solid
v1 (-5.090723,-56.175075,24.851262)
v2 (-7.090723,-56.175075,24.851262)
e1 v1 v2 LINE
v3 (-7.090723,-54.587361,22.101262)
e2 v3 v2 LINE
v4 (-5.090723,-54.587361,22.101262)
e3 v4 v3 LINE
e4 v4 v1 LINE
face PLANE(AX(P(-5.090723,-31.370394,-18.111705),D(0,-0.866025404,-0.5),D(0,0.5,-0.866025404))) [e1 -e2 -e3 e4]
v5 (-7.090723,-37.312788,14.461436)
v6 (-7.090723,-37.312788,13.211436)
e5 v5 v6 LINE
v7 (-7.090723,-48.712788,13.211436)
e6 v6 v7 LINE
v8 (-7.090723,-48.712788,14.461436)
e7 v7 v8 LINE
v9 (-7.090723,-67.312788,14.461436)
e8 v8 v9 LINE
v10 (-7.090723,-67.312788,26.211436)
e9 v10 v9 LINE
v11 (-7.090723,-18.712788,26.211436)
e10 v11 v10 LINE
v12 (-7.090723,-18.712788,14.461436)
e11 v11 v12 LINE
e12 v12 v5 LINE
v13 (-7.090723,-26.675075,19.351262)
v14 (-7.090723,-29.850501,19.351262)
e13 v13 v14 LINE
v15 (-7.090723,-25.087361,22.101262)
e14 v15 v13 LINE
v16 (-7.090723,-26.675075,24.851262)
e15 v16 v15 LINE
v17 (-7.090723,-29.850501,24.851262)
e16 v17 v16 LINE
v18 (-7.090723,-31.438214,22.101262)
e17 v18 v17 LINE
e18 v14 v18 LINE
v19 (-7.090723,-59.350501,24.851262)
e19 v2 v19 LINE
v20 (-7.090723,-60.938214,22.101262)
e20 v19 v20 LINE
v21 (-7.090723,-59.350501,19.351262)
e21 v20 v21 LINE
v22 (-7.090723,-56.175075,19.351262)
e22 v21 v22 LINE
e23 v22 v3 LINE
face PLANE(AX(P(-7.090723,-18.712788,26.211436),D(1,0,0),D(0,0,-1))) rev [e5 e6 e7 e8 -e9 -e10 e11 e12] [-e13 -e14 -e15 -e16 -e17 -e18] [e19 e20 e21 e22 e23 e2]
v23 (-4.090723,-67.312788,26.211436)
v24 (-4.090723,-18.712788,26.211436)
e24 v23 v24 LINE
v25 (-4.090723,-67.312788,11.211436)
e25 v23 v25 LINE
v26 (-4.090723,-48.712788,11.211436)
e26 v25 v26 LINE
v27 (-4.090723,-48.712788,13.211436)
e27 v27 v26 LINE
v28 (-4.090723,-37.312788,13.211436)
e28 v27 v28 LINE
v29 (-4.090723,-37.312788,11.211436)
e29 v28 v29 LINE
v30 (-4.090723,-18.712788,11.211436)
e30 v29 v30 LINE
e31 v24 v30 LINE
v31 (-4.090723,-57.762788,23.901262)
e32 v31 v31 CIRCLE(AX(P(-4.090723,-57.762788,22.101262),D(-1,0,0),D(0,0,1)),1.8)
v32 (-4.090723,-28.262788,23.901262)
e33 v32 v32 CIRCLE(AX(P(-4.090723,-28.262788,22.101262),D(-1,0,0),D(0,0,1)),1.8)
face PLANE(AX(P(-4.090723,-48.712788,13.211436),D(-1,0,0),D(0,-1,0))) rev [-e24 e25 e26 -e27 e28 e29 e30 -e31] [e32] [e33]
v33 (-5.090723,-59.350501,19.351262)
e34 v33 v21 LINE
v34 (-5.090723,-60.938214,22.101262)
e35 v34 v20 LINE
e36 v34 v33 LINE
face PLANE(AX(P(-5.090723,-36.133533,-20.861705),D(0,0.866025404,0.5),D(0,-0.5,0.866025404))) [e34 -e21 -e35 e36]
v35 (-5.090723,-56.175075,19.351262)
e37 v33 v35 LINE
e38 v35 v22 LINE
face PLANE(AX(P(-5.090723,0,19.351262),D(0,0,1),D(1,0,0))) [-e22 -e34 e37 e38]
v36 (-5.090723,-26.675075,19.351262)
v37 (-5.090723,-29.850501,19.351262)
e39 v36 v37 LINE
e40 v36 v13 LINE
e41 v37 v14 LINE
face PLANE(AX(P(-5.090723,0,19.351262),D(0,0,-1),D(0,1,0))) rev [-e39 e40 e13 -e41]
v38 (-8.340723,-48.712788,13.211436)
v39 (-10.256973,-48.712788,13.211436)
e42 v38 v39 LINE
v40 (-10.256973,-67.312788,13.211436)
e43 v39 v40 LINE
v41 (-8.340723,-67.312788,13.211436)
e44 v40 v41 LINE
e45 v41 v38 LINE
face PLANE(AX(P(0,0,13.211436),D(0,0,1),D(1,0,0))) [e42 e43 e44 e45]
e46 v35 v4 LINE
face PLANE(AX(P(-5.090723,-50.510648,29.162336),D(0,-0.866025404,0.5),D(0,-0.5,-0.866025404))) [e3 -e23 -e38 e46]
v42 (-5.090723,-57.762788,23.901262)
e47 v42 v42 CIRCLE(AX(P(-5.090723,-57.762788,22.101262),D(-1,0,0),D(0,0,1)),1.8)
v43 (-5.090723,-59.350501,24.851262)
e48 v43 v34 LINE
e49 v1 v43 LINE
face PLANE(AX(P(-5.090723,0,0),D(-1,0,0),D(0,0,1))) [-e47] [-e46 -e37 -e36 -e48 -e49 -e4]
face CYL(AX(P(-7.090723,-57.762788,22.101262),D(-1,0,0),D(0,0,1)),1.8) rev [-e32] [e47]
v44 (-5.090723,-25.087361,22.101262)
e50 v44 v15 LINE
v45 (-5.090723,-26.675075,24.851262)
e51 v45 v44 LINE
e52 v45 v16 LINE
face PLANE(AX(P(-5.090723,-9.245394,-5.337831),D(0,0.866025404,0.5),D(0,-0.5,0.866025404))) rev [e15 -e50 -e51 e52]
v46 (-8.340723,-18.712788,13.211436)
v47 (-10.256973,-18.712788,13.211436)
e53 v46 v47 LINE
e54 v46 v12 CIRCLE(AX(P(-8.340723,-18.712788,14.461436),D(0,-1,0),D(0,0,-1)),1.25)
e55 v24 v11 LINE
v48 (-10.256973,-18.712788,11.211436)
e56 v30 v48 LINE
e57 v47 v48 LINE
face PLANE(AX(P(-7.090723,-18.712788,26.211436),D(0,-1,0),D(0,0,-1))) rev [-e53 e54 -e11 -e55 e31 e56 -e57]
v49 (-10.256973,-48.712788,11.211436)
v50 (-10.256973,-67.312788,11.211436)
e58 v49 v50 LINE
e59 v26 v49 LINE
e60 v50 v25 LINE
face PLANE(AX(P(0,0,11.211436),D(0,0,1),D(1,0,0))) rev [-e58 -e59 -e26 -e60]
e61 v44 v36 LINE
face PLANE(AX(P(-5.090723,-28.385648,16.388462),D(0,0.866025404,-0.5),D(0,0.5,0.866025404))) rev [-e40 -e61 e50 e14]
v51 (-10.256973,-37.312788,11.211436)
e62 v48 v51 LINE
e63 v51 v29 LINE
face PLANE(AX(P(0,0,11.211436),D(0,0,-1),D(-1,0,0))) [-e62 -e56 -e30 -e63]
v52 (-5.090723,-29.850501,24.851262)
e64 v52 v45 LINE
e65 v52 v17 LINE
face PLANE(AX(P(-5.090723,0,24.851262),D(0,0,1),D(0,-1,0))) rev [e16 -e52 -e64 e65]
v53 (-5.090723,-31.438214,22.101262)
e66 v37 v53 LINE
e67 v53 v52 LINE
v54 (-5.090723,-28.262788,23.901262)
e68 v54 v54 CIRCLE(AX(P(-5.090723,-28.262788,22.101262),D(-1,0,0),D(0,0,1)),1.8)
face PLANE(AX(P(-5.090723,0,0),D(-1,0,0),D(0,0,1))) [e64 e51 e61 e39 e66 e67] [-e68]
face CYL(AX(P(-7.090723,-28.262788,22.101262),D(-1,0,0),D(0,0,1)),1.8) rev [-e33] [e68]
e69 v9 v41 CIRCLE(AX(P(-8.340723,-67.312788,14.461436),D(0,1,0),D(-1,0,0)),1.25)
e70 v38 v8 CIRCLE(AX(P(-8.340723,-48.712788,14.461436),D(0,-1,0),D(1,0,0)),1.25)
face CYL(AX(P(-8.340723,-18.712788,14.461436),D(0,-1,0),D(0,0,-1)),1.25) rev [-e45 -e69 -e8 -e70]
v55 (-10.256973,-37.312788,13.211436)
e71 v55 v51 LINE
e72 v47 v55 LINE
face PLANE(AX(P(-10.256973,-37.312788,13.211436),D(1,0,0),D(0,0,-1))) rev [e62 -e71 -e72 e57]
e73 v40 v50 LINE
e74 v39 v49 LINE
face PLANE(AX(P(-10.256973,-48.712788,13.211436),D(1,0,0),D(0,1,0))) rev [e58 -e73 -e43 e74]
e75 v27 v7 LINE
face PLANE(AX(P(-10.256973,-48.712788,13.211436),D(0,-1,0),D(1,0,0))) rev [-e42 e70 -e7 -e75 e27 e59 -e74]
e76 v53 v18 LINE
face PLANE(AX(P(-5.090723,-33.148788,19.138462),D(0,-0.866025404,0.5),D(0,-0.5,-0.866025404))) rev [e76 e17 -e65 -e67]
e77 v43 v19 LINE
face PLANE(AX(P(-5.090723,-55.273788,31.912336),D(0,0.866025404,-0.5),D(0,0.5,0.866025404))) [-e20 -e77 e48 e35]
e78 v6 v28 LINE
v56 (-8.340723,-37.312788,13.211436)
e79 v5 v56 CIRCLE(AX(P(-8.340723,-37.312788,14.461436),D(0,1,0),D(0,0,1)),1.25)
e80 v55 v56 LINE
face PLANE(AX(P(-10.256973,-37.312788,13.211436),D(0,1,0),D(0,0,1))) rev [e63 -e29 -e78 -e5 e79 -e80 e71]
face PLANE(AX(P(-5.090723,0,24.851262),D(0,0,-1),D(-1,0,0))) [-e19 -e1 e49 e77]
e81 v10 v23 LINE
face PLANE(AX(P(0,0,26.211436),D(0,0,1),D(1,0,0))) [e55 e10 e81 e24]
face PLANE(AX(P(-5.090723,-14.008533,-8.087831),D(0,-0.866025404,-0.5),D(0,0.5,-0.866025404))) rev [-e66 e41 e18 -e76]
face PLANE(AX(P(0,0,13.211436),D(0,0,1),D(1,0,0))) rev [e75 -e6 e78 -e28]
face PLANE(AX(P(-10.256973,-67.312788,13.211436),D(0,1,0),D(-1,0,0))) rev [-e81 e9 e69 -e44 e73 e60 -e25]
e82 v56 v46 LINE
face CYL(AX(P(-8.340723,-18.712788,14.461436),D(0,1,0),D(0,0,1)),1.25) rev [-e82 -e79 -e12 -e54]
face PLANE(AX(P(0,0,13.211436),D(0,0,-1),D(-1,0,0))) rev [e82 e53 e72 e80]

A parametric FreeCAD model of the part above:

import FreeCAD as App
import Part
import Sketcher

V = App.Vector
Q = App.Units.Quantity


def edges_at(feature, points):
    """Names of the edges that pass closest to the given points."""
    edges = feature.Shape.Edges
    near = lambda p: min(range(len(edges)), key=lambda i: edges[i].distToShape(Part.Vertex(*p))[0])
    return sorted({f"Edge{near(p) + 1}" for p in points})


def add_polygon(sketch, points):
    """Adds a closed chain of lines whose ends are joined by coincident constraints."""
    first, n = sketch.GeometryCount, len(points)
    for a, b in zip(points, points[1:] + points[:1]):
        sketch.addGeometry(Part.LineSegment(App.Vector(*a, 0), App.Vector(*b, 0)), False)
    for i in range(n):
        sketch.addConstraint(Sketcher.Constraint("Coincident", first + i, 2, first + (i + 1) % n, 1))

doc = App.newDocument("Part")
params = doc.addObject("Spreadsheet::Sheet", "Params")
for row, (alias, value) in enumerate([
    ("sketch1_height", "18.6 mm"),
    ("pad1_length", "2 mm"),
    ("sketch2_height", "18.6 mm"),
    ("pad2_length", "2 mm"),
    ("sketch3_width", "3 mm"),
    ("sketch3_height", "48.6 mm"),
    ("pad3_length", "13 mm"),
    ("fillet_radius", "1.25 mm"),
    ("pocket1_length", "2 mm"),
    ("sketch5_diameter", "3.6 mm"),
    ("hole_diameter", "3.6 mm"),
], start=1):
    params.set(f"A{row}", alias)
    params.set(f"B{row}", "=" + value)
    params.setAlias(f"B{row}", alias)

body = doc.addObject("PartDesign::Body", "Body")

# Sketch on XY plane
sketch1 = body.newObject("Sketcher::SketchObject", "Sketch")
sketch1.AttachmentSupport = (doc.getObject("XY_Plane"), [""])
sketch1.MapMode = "FlatFace"
sketch1.AttachmentOffset = App.Placement(V(0, 0, 11.211436), App.Rotation())
add_polygon(sketch1, [(-10, -19), (-10, -37), (-4, -37), (-4, -19)])  # lines 0-3
sketch1.addConstraint([
    Sketcher.Constraint("Vertical", 0),
    Sketcher.Constraint("Horizontal", 1),
    Sketcher.Constraint("Vertical", 2),
    Sketcher.Constraint("Horizontal", 3),
    Sketcher.Constraint("DistanceY", 0, 2, 0, 1, Q("18.6 mm")),
    Sketcher.Constraint("DistanceX", 1, 1, 1, 2, Q("6.16625 mm")),
    Sketcher.Constraint("DistanceX", 0, 2, -1, 1, Q("10.256973 mm")),
    Sketcher.Constraint("DistanceY", 0, 2, -1, 1, Q("37.312788 mm")),
])
sketch1.setExpression("Constraints[8]", "Params.sketch1_height")
pad1 = body.newObject("PartDesign::Pad", "Pad")
pad1.Profile = sketch1
pad1.setExpression("Length", "Params.pad1_length")
body2 = doc.addObject("PartDesign::Body", "Body001")

# Sketch on XY plane
sketch2 = body2.newObject("Sketcher::SketchObject", "Sketch001")
sketch2.AttachmentSupport = (doc.getObject("XY_Plane001"), [""])
sketch2.MapMode = "FlatFace"
sketch2.AttachmentOffset = App.Placement(V(0, 0, 11.211436), App.Rotation())
add_polygon(sketch2, [(-10, -49), (-10, -67), (-4, -67), (-4, -49)])  # lines 0-3
sketch2.addConstraint([
    Sketcher.Constraint("Vertical", 0),
    Sketcher.Constraint("Horizontal", 1),
    Sketcher.Constraint("Vertical", 2),
    Sketcher.Constraint("Horizontal", 3),
    Sketcher.Constraint("DistanceY", 0, 2, 0, 1, Q("18.6 mm")),
    Sketcher.Constraint("DistanceX", 1, 1, 1, 2, Q("6.16625 mm")),
    Sketcher.Constraint("DistanceX", 0, 2, -1, 1, Q("10.256973 mm")),
    Sketcher.Constraint("DistanceY", 0, 2, -1, 1, Q("67.312788 mm")),
])
sketch2.setExpression("Constraints[8]", "Params.sketch2_height")
pad2 = body2.newObject("PartDesign::Pad", "Pad001")
pad2.Profile = sketch2
pad2.setExpression("Length", "Params.pad2_length")
body.AllowCompound = True
doc.recompute()

boolean = body.newObject("PartDesign::Boolean", "Boolean")
boolean.Type = "Fuse"
boolean.addObjects([body2])

# Sketch on XY plane
sketch3 = body.newObject("Sketcher::SketchObject", "Sketch002")
sketch3.AttachmentSupport = (doc.getObject("XY_Plane"), [""])
sketch3.MapMode = "FlatFace"
sketch3.AttachmentOffset = App.Placement(V(0, 0, 13.211436), App.Rotation())
add_polygon(sketch3, [(-7.1, -18.7), (-7.1, -67.3), (-4.1, -67.3), (-4.1, -18.7)])  # lines 0-3
sketch3.addConstraint([
    Sketcher.Constraint("Vertical", 0),
    Sketcher.Constraint("Horizontal", 1),
    Sketcher.Constraint("Vertical", 2),
    Sketcher.Constraint("Horizontal", 3),
    Sketcher.Constraint("DistanceX", 1, 1, 1, 2, Q("3 mm")),
    Sketcher.Constraint("DistanceY", 0, 2, 0, 1, Q("48.6 mm")),
    Sketcher.Constraint("DistanceX", 0, 2, -1, 1, Q("7.090723 mm")),
    Sketcher.Constraint("DistanceY", 0, 2, -1, 1, Q("67.312788 mm")),
])
sketch3.setExpression("Constraints[8]", "Params.sketch3_width")
sketch3.setExpression("Constraints[9]", "Params.sketch3_height")
pad3 = body.newObject("PartDesign::Pad", "Pad002")
pad3.Profile = sketch3
pad3.setExpression("Length", "Params.pad3_length")
doc.recompute()

fillet = body.newObject("PartDesign::Fillet", "Fillet")
fillet.Base = (pad3, edges_at(pad3, [(-7.091, -58.013, 13.211), (-7.091, -28.013, 13.211)]))
fillet.setExpression("Radius", "Params.fillet_radius")

# Sketch on YZ plane
sketch4 = body.newObject("Sketcher::SketchObject", "Sketch003")
sketch4.AttachmentSupport = (doc.getObject("YZ_Plane"), [""])
sketch4.MapMode = "FlatFace"
sketch4.AttachmentOffset = App.Placement(V(0, 0, -7.090723), App.Rotation())
add_polygon(sketch4, [(-31.4, 22.1), (-29.9, 19.4), (-26.7, 19.4), (-25.1, 22.1), (-26.7, 24.9), (-29.9, 24.9)])  # lines 0-5
add_polygon(sketch4, [(-60.9, 22.1), (-59.4, 19.4), (-56.2, 19.4), (-54.6, 22.1), (-56.2, 24.9), (-59.4, 24.9)])  # lines 6-11
sketch4.addConstraint([
    Sketcher.Constraint("Horizontal", 1),
    Sketcher.Constraint("Horizontal", 4),
    Sketcher.Constraint("Horizontal", 7),
    Sketcher.Constraint("Horizontal", 10),
    Sketcher.Constraint("Parallel", 0, 3),
    Sketcher.Constraint("Parallel", 2, 5),
    Sketcher.Constraint("Parallel", 3, 6),
    Sketcher.Constraint("Parallel", 5, 8),
    Sketcher.Constraint("Parallel", 6, 9),
    Sketcher.Constraint("Parallel", 8, 11),
    Sketcher.Constraint("Horizontal", 2, 2, 5, 2),
    Sketcher.Constraint("Horizontal", 1, 2, 6, 2),
    Sketcher.Constraint("Horizontal", 5, 2, 8, 2),
    Sketcher.Constraint("Horizontal", 4, 2, 9, 2),
    Sketcher.Constraint("Horizontal", 8, 2, 11, 2),
    Sketcher.Constraint("Vertical", 1, 2, 3, 2),
    Sketcher.Constraint("Vertical", 0, 2, 4, 2),
    Sketcher.Constraint("Equal", 4, 7),
    Sketcher.Constraint("Angle", 0, Q("-60 deg")),
    Sketcher.Constraint("DistanceY", 1, 2, 3, 2, Q("5.5 mm")),
    Sketcher.Constraint("DistanceX", 6, 2, 0, 2, Q("29.5 mm")),
    Sketcher.Constraint("DistanceX", 0, 2, -1, 1, Q("29.850501 mm")),
    Sketcher.Constraint("DistanceX", 1, 1, 1, 2, Q("3.175426 mm")),
    Sketcher.Constraint("DistanceY", -1, 1, 0, 2, Q("19.351262 mm")),
])
pocket1 = body.newObject("PartDesign::Pocket", "Pocket")
pocket1.Profile = sketch4
pocket1.setExpression("Length", "Params.pocket1_length")
pocket1.Reversed = True

# Sketch on YZ plane
sketch5 = body.newObject("Sketcher::SketchObject", "Sketch004")
sketch5.AttachmentSupport = (doc.getObject("YZ_Plane"), [""])
sketch5.MapMode = "FlatFace"
sketch5.AttachmentOffset = App.Placement(V(0, 0, -7.090723), App.Rotation())
sketch5.addGeometry([
    Part.Circle(V(-57.8, 22.1, 0), V(0, 0, 1), 1.8),
    Part.Circle(V(-28.3, 22.1, 0), V(0, 0, 1), 1.8),
], False)
sketch5.addConstraint([
    Sketcher.Constraint("Equal", 0, 1),
    Sketcher.Constraint("Horizontal", 0, 3, 1, 3),
    Sketcher.Constraint("Diameter", 0, Q("3.6 mm")),
    Sketcher.Constraint("DistanceX", 0, 3, 1, 3, Q("29.5 mm")),
    Sketcher.Constraint("DistanceX", 0, 3, -1, 1, Q("57.762788 mm")),
    Sketcher.Constraint("DistanceY", -1, 1, 0, 3, Q("22.101262 mm")),
])
sketch5.setExpression("Constraints[2]", "Params.sketch5_diameter")
doc.recompute()
hole = body.newObject("PartDesign::Hole", "Hole")
hole.Profile = sketch5
hole.ThreadType = "None"
hole.setExpression("Diameter", "Params.hole_diameter")
hole.DepthType = "ThroughAll"
hole.Reversed = True

doc.recompute()
